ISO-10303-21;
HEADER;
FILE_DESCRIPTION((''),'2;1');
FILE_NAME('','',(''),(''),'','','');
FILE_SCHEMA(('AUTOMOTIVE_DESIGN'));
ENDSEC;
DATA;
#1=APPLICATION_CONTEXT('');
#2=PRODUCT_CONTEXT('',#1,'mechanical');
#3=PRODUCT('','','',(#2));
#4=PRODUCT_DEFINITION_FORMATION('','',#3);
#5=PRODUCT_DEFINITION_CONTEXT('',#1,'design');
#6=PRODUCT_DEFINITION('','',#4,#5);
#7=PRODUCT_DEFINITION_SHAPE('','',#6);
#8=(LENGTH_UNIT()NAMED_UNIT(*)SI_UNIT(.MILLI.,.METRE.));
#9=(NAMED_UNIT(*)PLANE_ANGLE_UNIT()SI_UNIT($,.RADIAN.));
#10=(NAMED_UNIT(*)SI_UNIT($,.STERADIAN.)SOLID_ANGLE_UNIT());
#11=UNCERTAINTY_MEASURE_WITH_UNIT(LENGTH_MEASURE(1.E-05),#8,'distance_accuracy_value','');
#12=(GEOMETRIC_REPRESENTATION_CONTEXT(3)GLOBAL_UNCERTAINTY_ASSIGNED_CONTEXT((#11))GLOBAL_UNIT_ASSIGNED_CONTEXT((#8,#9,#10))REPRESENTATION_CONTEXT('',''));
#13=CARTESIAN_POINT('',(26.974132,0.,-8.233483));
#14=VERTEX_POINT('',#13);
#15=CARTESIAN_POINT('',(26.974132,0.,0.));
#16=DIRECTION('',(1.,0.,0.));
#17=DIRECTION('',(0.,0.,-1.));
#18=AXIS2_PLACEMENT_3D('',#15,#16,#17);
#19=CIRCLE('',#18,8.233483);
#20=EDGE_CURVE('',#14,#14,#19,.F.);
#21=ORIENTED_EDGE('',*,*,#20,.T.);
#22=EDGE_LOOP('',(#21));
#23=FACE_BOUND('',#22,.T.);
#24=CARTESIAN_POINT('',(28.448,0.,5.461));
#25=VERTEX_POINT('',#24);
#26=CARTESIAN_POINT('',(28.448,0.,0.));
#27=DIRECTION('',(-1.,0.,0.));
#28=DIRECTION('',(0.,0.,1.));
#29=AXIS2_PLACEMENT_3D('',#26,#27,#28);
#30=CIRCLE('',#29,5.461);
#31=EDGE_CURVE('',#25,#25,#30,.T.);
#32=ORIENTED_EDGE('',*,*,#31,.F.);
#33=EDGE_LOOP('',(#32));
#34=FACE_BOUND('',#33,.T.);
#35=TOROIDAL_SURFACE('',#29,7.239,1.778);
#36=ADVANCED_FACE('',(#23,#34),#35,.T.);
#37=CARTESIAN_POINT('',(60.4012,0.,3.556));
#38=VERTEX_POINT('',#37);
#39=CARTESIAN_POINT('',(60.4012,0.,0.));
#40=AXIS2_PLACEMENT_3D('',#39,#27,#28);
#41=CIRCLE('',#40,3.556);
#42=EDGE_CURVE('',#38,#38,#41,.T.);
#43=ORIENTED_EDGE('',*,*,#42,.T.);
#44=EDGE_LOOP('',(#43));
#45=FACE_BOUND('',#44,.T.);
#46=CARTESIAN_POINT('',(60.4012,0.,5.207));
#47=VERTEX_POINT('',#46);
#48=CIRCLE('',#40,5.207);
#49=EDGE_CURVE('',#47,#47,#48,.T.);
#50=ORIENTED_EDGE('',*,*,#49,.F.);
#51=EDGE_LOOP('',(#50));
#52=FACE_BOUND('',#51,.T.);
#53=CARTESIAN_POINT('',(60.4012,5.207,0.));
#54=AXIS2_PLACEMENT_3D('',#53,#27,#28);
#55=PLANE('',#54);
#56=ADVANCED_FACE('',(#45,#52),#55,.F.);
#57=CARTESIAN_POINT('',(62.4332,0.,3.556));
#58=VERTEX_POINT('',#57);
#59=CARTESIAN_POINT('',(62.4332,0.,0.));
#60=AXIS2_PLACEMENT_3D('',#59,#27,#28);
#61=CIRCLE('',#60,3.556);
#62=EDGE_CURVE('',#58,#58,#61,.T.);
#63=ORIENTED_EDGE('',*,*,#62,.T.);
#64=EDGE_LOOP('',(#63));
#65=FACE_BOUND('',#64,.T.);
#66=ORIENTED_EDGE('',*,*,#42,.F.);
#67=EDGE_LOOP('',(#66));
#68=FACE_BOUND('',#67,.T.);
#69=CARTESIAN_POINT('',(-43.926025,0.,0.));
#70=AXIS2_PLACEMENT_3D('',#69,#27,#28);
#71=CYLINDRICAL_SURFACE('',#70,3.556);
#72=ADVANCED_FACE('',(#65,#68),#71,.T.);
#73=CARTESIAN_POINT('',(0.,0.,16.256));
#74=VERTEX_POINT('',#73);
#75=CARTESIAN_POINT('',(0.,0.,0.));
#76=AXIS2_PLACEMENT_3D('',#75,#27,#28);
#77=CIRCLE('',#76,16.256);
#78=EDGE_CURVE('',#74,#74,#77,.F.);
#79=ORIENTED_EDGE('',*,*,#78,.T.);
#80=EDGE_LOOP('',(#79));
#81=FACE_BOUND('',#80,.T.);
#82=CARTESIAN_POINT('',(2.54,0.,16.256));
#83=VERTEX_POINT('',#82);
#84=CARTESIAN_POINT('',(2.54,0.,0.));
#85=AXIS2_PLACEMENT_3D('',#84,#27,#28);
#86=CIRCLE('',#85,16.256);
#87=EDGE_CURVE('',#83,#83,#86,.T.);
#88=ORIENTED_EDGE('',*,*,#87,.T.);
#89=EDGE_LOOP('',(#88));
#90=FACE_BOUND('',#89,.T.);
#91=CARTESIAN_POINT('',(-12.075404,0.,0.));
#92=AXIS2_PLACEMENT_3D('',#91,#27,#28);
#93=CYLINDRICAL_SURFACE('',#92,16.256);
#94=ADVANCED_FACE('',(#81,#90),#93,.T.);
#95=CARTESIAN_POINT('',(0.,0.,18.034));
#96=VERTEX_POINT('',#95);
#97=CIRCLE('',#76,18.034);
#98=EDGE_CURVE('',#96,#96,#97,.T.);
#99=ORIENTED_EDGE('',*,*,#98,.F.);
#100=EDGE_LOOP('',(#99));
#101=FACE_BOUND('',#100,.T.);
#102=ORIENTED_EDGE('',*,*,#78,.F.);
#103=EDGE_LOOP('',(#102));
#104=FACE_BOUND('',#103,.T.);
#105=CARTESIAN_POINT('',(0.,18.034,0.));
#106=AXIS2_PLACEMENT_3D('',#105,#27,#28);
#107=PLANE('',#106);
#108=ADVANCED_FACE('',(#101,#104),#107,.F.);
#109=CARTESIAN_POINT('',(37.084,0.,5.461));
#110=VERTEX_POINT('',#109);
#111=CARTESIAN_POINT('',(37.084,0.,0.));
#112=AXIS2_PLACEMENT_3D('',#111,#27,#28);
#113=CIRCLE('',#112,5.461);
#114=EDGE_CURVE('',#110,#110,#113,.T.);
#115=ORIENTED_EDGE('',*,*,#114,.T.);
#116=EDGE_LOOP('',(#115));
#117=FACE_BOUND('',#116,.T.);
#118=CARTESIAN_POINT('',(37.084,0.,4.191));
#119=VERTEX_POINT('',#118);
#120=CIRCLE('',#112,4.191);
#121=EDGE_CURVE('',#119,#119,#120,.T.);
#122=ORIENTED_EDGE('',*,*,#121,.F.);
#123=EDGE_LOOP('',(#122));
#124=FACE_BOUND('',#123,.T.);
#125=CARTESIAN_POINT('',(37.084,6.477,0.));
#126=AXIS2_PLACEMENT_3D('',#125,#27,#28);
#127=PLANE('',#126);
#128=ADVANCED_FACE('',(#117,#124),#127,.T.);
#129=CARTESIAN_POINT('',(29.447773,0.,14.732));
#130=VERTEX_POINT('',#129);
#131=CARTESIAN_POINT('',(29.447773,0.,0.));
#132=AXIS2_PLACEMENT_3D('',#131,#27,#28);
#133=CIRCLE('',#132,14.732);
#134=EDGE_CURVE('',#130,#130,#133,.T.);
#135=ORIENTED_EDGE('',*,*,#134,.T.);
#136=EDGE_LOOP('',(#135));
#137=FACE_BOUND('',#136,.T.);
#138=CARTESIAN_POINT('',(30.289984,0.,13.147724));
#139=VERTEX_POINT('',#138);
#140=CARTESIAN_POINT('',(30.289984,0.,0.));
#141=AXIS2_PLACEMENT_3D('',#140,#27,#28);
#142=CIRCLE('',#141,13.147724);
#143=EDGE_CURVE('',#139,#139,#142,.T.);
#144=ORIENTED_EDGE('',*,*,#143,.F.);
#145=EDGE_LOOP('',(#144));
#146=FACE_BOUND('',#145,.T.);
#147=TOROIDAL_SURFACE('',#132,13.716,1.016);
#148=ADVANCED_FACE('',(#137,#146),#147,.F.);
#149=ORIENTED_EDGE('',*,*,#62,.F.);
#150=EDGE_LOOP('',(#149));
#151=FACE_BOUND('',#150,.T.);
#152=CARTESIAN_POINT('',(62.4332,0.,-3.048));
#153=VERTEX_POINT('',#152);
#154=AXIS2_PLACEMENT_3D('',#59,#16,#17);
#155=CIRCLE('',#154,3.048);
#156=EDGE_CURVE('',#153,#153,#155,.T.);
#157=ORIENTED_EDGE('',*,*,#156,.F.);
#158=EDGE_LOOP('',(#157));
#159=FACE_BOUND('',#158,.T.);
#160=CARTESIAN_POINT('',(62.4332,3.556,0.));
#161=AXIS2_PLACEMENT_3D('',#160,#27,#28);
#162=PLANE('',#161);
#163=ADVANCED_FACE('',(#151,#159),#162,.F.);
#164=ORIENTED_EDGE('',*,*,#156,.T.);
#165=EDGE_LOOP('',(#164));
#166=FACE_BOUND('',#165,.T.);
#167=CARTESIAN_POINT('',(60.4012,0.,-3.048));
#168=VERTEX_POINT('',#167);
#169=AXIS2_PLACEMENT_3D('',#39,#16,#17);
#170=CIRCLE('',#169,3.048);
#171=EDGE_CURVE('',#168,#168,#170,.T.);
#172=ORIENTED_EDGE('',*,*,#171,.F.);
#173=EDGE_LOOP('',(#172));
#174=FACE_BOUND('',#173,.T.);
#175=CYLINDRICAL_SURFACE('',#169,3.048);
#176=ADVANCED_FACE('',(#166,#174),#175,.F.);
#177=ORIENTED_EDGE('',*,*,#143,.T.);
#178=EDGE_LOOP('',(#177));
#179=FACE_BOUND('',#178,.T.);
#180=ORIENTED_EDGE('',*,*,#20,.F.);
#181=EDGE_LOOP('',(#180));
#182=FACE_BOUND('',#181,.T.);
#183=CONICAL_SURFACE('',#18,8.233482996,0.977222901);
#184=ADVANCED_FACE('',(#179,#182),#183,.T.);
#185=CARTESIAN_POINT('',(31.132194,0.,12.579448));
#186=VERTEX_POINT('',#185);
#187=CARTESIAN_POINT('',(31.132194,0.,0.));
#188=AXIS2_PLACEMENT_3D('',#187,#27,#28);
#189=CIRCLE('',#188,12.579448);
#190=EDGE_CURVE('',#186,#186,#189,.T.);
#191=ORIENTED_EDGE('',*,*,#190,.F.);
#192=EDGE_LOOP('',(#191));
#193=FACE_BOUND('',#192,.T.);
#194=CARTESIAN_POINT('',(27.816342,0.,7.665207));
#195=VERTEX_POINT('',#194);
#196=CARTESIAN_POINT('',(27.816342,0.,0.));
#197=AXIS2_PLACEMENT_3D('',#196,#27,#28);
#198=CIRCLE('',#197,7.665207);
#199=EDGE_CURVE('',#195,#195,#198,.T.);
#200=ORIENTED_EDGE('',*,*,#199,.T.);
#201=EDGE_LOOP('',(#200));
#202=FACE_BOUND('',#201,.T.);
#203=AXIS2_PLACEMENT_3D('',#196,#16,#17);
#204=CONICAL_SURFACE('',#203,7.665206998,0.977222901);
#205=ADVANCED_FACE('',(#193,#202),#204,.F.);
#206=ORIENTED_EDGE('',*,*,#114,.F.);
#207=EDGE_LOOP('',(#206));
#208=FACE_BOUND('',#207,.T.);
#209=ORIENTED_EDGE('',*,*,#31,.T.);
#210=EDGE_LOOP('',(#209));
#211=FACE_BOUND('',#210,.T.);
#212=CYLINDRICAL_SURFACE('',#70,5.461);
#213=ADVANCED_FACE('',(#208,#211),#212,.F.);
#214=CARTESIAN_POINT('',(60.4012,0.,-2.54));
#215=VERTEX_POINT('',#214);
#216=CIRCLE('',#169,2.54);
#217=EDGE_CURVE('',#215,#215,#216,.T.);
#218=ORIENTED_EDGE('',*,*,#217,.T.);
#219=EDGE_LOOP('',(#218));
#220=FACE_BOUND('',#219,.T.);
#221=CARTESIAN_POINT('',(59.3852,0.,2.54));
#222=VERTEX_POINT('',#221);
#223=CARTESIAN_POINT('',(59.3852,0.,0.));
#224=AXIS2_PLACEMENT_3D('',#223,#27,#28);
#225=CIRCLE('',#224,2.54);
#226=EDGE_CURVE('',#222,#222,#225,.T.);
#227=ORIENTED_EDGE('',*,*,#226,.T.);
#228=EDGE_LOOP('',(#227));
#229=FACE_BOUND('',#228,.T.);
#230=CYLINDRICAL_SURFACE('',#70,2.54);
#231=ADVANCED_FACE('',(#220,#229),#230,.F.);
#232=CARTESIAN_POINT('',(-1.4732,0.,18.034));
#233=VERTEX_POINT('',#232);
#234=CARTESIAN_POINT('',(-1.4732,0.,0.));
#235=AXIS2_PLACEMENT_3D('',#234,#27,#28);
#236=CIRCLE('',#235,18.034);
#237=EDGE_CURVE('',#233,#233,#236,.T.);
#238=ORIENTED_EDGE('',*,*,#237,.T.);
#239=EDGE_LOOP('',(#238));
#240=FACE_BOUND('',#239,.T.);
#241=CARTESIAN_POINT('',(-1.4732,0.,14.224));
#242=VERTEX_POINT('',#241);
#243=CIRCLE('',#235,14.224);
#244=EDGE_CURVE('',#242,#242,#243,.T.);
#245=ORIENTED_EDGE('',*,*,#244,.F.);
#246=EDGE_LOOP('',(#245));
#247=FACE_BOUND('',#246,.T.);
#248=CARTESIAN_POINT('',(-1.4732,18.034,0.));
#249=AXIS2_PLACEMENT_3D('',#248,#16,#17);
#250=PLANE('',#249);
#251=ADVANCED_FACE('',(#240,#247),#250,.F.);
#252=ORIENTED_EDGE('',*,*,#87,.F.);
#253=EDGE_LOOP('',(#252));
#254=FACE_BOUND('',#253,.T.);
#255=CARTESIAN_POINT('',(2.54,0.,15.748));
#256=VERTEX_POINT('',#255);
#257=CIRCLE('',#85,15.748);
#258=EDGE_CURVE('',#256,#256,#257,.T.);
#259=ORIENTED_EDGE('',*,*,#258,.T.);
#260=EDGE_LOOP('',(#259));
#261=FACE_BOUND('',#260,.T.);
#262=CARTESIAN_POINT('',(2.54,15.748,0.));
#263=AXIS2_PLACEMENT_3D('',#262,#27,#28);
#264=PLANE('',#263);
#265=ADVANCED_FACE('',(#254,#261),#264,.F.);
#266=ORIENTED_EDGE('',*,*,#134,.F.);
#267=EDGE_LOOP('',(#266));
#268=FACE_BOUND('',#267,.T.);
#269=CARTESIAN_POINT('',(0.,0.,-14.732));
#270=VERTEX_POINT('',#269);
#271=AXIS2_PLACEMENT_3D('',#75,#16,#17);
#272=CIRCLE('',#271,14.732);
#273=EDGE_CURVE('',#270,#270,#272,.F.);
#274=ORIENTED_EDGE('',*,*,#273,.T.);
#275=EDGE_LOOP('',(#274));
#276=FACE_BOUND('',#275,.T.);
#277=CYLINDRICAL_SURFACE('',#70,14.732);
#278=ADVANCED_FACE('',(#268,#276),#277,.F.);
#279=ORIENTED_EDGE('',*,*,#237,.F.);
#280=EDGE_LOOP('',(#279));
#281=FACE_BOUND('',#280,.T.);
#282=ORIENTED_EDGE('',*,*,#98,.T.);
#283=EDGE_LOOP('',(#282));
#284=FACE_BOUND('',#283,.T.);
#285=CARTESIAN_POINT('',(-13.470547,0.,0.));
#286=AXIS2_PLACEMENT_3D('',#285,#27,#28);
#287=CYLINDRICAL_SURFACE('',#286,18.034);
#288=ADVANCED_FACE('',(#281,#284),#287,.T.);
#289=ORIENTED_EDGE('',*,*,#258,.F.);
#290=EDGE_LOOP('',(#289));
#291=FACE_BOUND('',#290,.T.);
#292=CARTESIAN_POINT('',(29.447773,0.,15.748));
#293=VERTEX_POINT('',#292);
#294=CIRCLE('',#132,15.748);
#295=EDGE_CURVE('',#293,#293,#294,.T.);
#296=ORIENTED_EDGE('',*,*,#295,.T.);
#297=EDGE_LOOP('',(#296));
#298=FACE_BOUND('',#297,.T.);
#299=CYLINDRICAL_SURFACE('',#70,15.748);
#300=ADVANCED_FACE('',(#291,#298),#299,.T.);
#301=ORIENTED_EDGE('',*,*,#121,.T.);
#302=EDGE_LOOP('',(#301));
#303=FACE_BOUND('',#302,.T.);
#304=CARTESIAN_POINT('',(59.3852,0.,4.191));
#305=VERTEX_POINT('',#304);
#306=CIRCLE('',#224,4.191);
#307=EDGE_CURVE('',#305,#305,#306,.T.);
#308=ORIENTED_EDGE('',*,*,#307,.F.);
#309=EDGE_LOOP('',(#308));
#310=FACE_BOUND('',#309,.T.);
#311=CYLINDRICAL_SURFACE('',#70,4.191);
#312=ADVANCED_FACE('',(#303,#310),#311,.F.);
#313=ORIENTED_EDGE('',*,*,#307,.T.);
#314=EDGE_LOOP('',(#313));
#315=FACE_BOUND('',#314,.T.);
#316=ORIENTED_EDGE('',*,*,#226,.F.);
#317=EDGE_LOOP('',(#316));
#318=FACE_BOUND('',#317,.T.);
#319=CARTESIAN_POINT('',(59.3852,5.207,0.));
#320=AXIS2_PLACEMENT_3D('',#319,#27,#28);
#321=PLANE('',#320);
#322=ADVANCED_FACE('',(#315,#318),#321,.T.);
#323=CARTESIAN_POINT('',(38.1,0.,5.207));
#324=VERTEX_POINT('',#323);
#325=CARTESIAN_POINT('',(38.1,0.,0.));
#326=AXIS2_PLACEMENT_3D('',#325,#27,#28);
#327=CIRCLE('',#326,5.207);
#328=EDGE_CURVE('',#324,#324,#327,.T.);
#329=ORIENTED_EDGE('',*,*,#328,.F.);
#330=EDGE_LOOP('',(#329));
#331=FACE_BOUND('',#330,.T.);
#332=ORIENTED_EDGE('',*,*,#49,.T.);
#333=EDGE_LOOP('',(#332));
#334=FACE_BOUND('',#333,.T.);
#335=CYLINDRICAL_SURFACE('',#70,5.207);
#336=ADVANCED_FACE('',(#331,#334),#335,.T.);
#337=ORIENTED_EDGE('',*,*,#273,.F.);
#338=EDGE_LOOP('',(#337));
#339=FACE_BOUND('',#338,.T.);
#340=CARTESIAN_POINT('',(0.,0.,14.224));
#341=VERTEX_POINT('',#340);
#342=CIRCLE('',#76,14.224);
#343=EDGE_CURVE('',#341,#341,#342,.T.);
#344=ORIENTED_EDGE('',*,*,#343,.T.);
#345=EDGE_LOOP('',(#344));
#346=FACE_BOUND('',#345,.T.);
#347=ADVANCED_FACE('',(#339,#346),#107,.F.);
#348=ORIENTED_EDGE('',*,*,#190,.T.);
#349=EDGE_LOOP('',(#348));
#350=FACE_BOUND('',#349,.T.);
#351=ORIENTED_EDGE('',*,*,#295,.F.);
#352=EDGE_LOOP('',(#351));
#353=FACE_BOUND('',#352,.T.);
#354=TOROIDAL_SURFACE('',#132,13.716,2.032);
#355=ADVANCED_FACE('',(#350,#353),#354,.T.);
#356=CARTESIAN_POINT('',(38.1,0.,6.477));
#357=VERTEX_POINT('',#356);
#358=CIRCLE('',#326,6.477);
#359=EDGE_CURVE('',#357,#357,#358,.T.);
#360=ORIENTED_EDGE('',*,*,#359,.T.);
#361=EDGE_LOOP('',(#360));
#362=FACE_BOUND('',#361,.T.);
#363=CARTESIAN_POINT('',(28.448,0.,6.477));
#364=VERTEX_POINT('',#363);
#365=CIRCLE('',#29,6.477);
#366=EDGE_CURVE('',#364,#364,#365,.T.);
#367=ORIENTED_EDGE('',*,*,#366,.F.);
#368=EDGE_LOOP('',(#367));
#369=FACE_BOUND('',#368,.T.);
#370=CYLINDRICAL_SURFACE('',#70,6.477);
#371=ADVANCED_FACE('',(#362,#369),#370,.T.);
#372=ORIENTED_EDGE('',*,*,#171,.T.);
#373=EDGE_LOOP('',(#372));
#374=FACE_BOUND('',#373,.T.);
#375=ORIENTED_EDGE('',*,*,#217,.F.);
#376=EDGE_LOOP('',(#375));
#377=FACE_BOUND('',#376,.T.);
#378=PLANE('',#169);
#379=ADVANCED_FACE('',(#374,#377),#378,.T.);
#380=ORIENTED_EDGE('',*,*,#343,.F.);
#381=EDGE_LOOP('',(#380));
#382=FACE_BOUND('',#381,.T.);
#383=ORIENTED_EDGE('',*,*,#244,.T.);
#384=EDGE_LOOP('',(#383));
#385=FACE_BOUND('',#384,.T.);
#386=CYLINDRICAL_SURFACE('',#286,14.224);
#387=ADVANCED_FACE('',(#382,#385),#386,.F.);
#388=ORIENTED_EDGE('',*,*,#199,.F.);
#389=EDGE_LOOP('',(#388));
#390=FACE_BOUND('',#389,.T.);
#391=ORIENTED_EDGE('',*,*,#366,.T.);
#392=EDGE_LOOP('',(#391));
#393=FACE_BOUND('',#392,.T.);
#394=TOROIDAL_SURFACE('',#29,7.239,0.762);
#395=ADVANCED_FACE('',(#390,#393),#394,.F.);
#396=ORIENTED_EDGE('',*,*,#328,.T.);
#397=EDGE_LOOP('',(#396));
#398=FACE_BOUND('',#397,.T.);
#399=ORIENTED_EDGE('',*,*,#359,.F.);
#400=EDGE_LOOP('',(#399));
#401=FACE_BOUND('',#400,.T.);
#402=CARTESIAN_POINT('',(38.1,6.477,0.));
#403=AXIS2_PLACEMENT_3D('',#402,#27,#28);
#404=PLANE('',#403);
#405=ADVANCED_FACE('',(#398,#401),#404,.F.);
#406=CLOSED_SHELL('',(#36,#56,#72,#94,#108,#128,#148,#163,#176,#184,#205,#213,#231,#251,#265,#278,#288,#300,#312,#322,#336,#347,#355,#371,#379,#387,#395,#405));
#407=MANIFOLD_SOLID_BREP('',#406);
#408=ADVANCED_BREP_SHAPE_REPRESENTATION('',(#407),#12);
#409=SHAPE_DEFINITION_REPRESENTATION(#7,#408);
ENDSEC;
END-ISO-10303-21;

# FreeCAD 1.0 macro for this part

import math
import FreeCAD as App
import Part
import Sketcher
Q = App.Units.Quantity


def faces_at(feature, points):
    """Names of the faces that lie closest to the given points."""
    faces = feature.Shape.Faces
    near = lambda p: min(range(len(faces)), key=lambda i: faces[i].distToShape(Part.Vertex(*p))[0])
    return sorted({f"Face{near(p) + 1}" for p in points})


def add_polygon(sketch, points):
    """Adds a closed chain of lines whose ends are joined by coincident constraints."""
    first, n = sketch.GeometryCount, len(points)
    for a, b in zip(points, points[1:] + points[:1]):
        sketch.addGeometry(Part.LineSegment(App.Vector(*a, 0), App.Vector(*b, 0)), False)
    for i in range(n):
        sketch.addConstraint(Sketcher.Constraint("Coincident", first + i, 2, first + (i + 1) % n, 1))

doc = App.newDocument("Part")
body = doc.addObject("PartDesign::Body", "Body")

# Sketch on XY plane
sketch1 = body.newObject("Sketcher::SketchObject", "Sketch")
sketch1.AttachmentSupport = (doc.getObject("XY_Plane"), [""])
sketch1.MapMode = "FlatFace"
sketch1.addGeometry([
    Part.LineSegment(App.Vector(29.4, 15.7, 0), App.Vector(0, 15.7, 0)),  # 0
    Part.LineSegment(App.Vector(0, 15.7, 0), App.Vector(0, 0, 0)),  # 1
    Part.LineSegment(App.Vector(0, 0, 0), App.Vector(62.4, 0, 0)),  # 2
    Part.LineSegment(App.Vector(62.4, 0, 0), App.Vector(62.4, 3.6, 0)),  # 3
    Part.LineSegment(App.Vector(62.4, 3.6, 0), App.Vector(60.4, 3.6, 0)),  # 4
    Part.LineSegment(App.Vector(60.4, 3.6, 0), App.Vector(60.4, 5.2, 0)),  # 5
    Part.LineSegment(App.Vector(60.4, 5.2, 0), App.Vector(38.1, 5.2, 0)),  # 6
    Part.LineSegment(App.Vector(38.1, 5.2, 0), App.Vector(38.1, 6.5, 0)),  # 7
    Part.LineSegment(App.Vector(38.1, 6.5, 0), App.Vector(28.4, 6.5, 0)),  # 8
    Part.ArcOfCircle(Part.Circle(App.Vector(28.4, 7.2, 0), App.Vector(0, 0, 1), 0.8), math.radians(146), math.radians(270)),  # 9
    Part.LineSegment(App.Vector(27.8, 7.7, 0), App.Vector(31.1, 12.6, 0)),  # 10
    Part.ArcOfCircle(Part.Circle(App.Vector(29.4, 13.7, 0), App.Vector(0, 0, 1), 2), math.radians(-34), math.radians(90)),  # 11
], False)
sketch1.addConstraint([
    Sketcher.Constraint("Coincident", 0, 2, 1, 1),
    Sketcher.Constraint("Coincident", 1, 2, 2, 1),
    Sketcher.Constraint("Coincident", 2, 2, 3, 1),
    Sketcher.Constraint("Coincident", 3, 2, 4, 1),
    Sketcher.Constraint("Coincident", 4, 2, 5, 1),
    Sketcher.Constraint("Coincident", 5, 2, 6, 1),
    Sketcher.Constraint("Coincident", 6, 2, 7, 1),
    Sketcher.Constraint("Coincident", 7, 2, 8, 1),
    Sketcher.Constraint("Tangent", 8, 2, 9, 2),
    Sketcher.Constraint("Tangent", 9, 1, 10, 1),
    Sketcher.Constraint("Tangent", 10, 2, 11, 1),
    Sketcher.Constraint("Tangent", 11, 2, 0, 1),
    Sketcher.Constraint("Horizontal", 0),
    Sketcher.Constraint("Vertical", 1),
    Sketcher.Constraint("Horizontal", 2),
    Sketcher.Constraint("Vertical", 3),
    Sketcher.Constraint("Horizontal", 4),
    Sketcher.Constraint("Vertical", 5),
    Sketcher.Constraint("Horizontal", 6),
    Sketcher.Constraint("Vertical", 7),
    Sketcher.Constraint("Horizontal", 8),
    Sketcher.Constraint("Coincident", 1, 2, -1, 1),
    Sketcher.Constraint("Radius", 9, Q("0.03 in")),
    Sketcher.Constraint("Radius", 11, Q("0.08 in")),
    Sketcher.Constraint("DistanceX", 4, 2, 4, 1, Q("0.08 in")),
    Sketcher.Constraint("DistanceX", 8, 2, 8, 1, Q("0.38 in")),
    Sketcher.Constraint("DistanceY", 1, 2, 1, 1, Q("0.62 in")),
    Sketcher.Constraint("DistanceY", 3, 1, 3, 2, Q("0.14 in")),
    Sketcher.Constraint("DistanceY", 7, 1, 7, 2, Q("0.05 in")),
    Sketcher.Constraint("DistanceX", -1, 1, 6, 2, Q("1.5 in")),
    Sketcher.Constraint("DistanceX", 2, 1, 2, 2, Q("2.458 in")),
    Sketcher.Constraint("DistanceY", 5, 1, 5, 2, Q("0.065 in")),
    Sketcher.Constraint("Distance", 10, Q("5.928291 mm")),
])
revolution = body.newObject("PartDesign::Revolution", "Revolution")
revolution.Profile = sketch1
revolution.ReferenceAxis = (sketch1, ["H_Axis"])
revolution.Angle = 360
doc.recompute()

thickness = body.newObject("PartDesign::Thickness", "Thickness")
thickness.Base = (revolution, faces_at(revolution, [(0, 0, 0)]))
thickness.Value = Q("0.04 in")
thickness.Reversed = True
thickness.Join = "Intersection"

# Sketch on YZ plane
sketch2 = body.newObject("Sketcher::SketchObject", "Sketch001")
sketch2.AttachmentSupport = (doc.getObject("YZ_Plane"), [""])
sketch2.MapMode = "FlatFace"
sketch2.AttachmentOffset = App.Placement(App.Vector(0, 0, 2.458 * 25.4), App.Rotation())
sketch2.addGeometry(Part.Circle(App.Vector(0, 0, 0), App.Vector(0, 0, 1), 3), False)
sketch2.addConstraint([
    Sketcher.Constraint("Coincident", 0, 3, -1, 1),
    Sketcher.Constraint("Diameter", 0, Q("0.24 in")),
])
pocket1 = body.newObject("PartDesign::Pocket", "Pocket")
pocket1.Profile = sketch2
pocket1.Length = Q("0.08 in")

# Sketch on XY plane
sketch3 = body.newObject("Sketcher::SketchObject", "Sketch002")
sketch3.AttachmentSupport = (doc.getObject("XY_Plane"), [""])
sketch3.MapMode = "FlatFace"
add_polygon(sketch3, [(-1.5, 18), (-1.5, 14.2), (0, 14.2), (0, 18)])  # lines 0-3
sketch3.addConstraint([
    Sketcher.Constraint("Vertical", 0),
    Sketcher.Constraint("Horizontal", 1),
    Sketcher.Constraint("Vertical", 2),
    Sketcher.Constraint("Horizontal", 3),
    Sketcher.Constraint("PointOnObject", 1, 2, -2),
    Sketcher.Constraint("DistanceY", 0, 2, 0, 1, Q("0.15 in")),
    Sketcher.Constraint("DistanceX", 1, 1, 1, 2, Q("0.058 in")),
    Sketcher.Constraint("DistanceY", -1, 1, 0, 2, Q("0.56 in")),
])
revolution2 = body.newObject("PartDesign::Revolution", "Revolution001")
revolution2.Profile = sketch3
revolution2.ReferenceAxis = (sketch3, ["H_Axis"])
revolution2.Angle = 360

# Sketch on XY plane
sketch4 = body.newObject("Sketcher::SketchObject", "Sketch003")
sketch4.AttachmentSupport = (doc.getObject("XY_Plane"), [""])
sketch4.MapMode = "FlatFace"
add_polygon(sketch4, [(0, 16.3), (0, 15.7), (2.5, 15.7), (2.5, 16.3)])  # lines 0-3
sketch4.addConstraint([
    Sketcher.Constraint("Vertical", 0),
    Sketcher.Constraint("Horizontal", 1),
    Sketcher.Constraint("Vertical", 2),
    Sketcher.Constraint("Horizontal", 3),
    Sketcher.Constraint("PointOnObject", 0, 2, -2),
    Sketcher.Constraint("DistanceX", 1, 1, 1, 2, Q("0.1 in")),
    Sketcher.Constraint("DistanceY", 0, 2, 0, 1, Q("0.02 in")),
    Sketcher.Constraint("DistanceY", -1, 1, 0, 2, Q("0.62 in")),
])
revolution3 = body.newObject("PartDesign::Revolution", "Revolution002")
revolution3.Profile = sketch4
revolution3.ReferenceAxis = (sketch4, ["H_Axis"])
revolution3.Angle = 360

doc.recompute()
